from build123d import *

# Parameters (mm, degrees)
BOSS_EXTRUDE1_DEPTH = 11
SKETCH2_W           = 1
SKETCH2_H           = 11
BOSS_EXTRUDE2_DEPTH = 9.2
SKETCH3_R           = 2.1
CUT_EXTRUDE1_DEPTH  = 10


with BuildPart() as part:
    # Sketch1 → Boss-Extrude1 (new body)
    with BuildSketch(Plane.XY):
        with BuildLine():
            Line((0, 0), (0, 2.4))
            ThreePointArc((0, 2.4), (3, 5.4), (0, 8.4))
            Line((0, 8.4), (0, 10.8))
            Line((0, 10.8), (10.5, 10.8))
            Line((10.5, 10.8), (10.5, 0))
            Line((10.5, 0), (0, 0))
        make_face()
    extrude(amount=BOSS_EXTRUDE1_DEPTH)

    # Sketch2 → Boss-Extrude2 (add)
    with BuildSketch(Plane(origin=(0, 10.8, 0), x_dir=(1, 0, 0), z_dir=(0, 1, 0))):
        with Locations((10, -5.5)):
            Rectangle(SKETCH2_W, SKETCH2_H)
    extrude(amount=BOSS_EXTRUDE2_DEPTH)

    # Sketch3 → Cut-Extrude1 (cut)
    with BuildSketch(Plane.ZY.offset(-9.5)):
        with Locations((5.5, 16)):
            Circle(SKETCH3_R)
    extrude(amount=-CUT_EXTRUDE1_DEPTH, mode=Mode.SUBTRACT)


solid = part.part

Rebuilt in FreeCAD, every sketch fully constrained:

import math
import FreeCAD as App
import Part
import Sketcher
from FreeCAD import Vector
Q = App.Units.Quantity


def add_polygon(sketch, points):
    """Adds a closed chain of lines whose ends are joined by coincident constraints."""
    first, n = sketch.GeometryCount, len(points)
    for a, b in zip(points, points[1:] + points[:1]):
        sketch.addGeometry(Part.LineSegment(App.Vector(*a, 0), App.Vector(*b, 0)), False)
    for i in range(n):
        sketch.addConstraint(Sketcher.Constraint("Coincident", first + i, 2, first + (i + 1) % n, 1))

doc = App.newDocument("Part")
body = doc.addObject("PartDesign::Body", "Body")

# Sketch on XY plane
sketch1 = body.newObject("Sketcher::SketchObject", "Sketch")
sketch1.AttachmentSupport = (doc.getObject("XY_Plane"), [""])
sketch1.MapMode = "FlatFace"
sketch1.addGeometry(Part.LineSegment(Vector(0, 2.4, 0), Vector(0, 0, 0)), False)
sketch1.addGeometry(Part.LineSegment(Vector(0, 0, 0), Vector(10.5, 0, 0)), False)
sketch1.addGeometry(Part.LineSegment(Vector(10.5, 0, 0), Vector(10.5, 10.8, 0)), False)
sketch1.addGeometry(Part.LineSegment(Vector(10.5, 10.8, 0), Vector(0, 10.8, 0)), False)
sketch1.addGeometry(Part.LineSegment(Vector(0, 10.8, 0), Vector(0, 8.4, 0)), False)
sketch1.addGeometry(Part.ArcOfCircle(Part.Circle(Vector(0, 5.4, 0), Vector(0, 0, 1), 3), math.radians(-90), math.radians(90)), False)
sketch1.addConstraint(Sketcher.Constraint("Coincident", 0, 2, 1, 1))
sketch1.addConstraint(Sketcher.Constraint("Coincident", 1, 2, 2, 1))
sketch1.addConstraint(Sketcher.Constraint("Coincident", 2, 2, 3, 1))
sketch1.addConstraint(Sketcher.Constraint("Coincident", 3, 2, 4, 1))
sketch1.addConstraint(Sketcher.Constraint("Coincident", 4, 2, 5, 2))
sketch1.addConstraint(Sketcher.Constraint("Coincident", 5, 1, 0, 1))
sketch1.addConstraint(Sketcher.Constraint("Vertical", 0))
sketch1.addConstraint(Sketcher.Constraint("Horizontal", 1))
sketch1.addConstraint(Sketcher.Constraint("Vertical", 2))
sketch1.addConstraint(Sketcher.Constraint("Horizontal", 3))
sketch1.addConstraint(Sketcher.Constraint("Vertical", 4))
sketch1.addConstraint(Sketcher.Constraint("Coincident", 0, 2, -1, 1))
sketch1.addConstraint(Sketcher.Constraint("PointOnObject", 5, 3, -2))
sketch1.addConstraint(Sketcher.Constraint("PointOnObject", 3, 2, -2))
sketch1.addConstraint(Sketcher.Constraint("Equal", 0, 4))
sketch1.addConstraint(Sketcher.Constraint("Radius", 5, Q("3 mm")))
sketch1.addConstraint(Sketcher.Constraint("DistanceX", 1, 1, 1, 2, Q("10.5 mm")))
sketch1.addConstraint(Sketcher.Constraint("DistanceY", 0, 2, 0, 1, Q("2.4 mm")))
pad1 = body.newObject("PartDesign::Pad", "Pad")
pad1.Profile = sketch1
pad1.Length = 11

# Sketch on XZ plane
sketch2 = body.newObject("Sketcher::SketchObject", "Sketch001")
sketch2.AttachmentSupport = (doc.getObject("XZ_Plane"), [""])
sketch2.MapMode = "FlatFace"
sketch2.AttachmentOffset = App.Placement(Vector(0, 0, -10.8), App.Rotation())
add_polygon(sketch2, [(9.5, 0), (9.5, 11), (10.5, 11), (10.5, 0)])  # lines 0-3
sketch2.addConstraint(Sketcher.Constraint("Vertical", 0))
sketch2.addConstraint(Sketcher.Constraint("Horizontal", 1))
sketch2.addConstraint(Sketcher.Constraint("Vertical", 2))
sketch2.addConstraint(Sketcher.Constraint("Horizontal", 3))
sketch2.addConstraint(Sketcher.Constraint("PointOnObject", 2, 2, -1))
sketch2.addConstraint(Sketcher.Constraint("DistanceX", 1, 1, 1, 2, Q("1 mm")))
sketch2.addConstraint(Sketcher.Constraint("DistanceY", 0, 1, 0, 2, Q("11 mm")))
sketch2.addConstraint(Sketcher.Constraint("DistanceX", -1, 1, 0, 2, Q("9.5 mm")))
pad2 = body.newObject("PartDesign::Pad", "Pad001")
pad2.Profile = sketch2
pad2.Length = 9.2
pad2.Reversed = True

# Sketch on YZ plane
sketch3 = body.newObject("Sketcher::SketchObject", "Sketch002")
sketch3.AttachmentSupport = (doc.getObject("YZ_Plane"), [""])
sketch3.MapMode = "FlatFace"
sketch3.AttachmentOffset = App.Placement(Vector(0, 0, 9.5), App.Rotation())
sketch3.addGeometry(Part.Circle(Vector(16, 5.5, 0), Vector(0, 0, 1), 2.1), False)
sketch3.addConstraint(Sketcher.Constraint("Diameter", 0, Q("4.2 mm")))
sketch3.addConstraint(Sketcher.Constraint("DistanceX", -1, 1, 0, 3, Q("16 mm")))
sketch3.addConstraint(Sketcher.Constraint("DistanceY", -1, 1, 0, 3, Q("5.5 mm")))
pocket1 = body.newObject("PartDesign::Pocket", "Pocket")
pocket1.Profile = sketch3
pocket1.Length = 10
pocket1.Reversed = True

doc.recompute()
